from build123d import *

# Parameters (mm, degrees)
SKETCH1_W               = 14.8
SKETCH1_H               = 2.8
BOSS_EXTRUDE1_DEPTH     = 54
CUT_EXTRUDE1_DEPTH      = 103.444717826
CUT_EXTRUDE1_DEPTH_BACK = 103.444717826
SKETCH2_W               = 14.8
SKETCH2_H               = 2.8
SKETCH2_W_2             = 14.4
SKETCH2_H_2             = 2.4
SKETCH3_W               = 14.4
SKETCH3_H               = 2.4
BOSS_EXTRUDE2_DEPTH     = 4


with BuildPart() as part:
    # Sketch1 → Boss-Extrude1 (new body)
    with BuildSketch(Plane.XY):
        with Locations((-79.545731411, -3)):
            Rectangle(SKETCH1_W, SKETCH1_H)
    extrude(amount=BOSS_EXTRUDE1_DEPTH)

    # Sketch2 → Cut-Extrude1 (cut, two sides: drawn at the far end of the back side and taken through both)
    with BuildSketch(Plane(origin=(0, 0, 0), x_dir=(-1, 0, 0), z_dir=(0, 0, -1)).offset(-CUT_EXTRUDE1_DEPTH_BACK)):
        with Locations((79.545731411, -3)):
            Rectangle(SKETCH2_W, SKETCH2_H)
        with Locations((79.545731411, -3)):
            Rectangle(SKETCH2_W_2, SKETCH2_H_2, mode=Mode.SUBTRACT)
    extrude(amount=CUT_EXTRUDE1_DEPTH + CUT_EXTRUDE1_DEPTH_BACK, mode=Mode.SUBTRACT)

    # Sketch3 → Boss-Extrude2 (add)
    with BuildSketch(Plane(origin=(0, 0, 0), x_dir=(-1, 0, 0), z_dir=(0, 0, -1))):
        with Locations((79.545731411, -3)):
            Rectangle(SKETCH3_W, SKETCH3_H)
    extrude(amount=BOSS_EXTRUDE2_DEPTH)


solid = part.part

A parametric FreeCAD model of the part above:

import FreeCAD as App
import Part
import Sketcher
from FreeCAD import Vector

doc = App.newDocument("Part")
body = doc.addObject("PartDesign::Body", "Body")

sketch1 = doc.addObject("Sketcher::SketchObject", "Sketch")
body.addObject(sketch1)
sketch1.AttachmentSupport = (doc.XY_Plane, [""])
sketch1.MapMode = "FlatFace"
sketch1.addGeometry([
    Part.LineSegment(Vector(-86.9, -1.6, 0), Vector(-86.9, -4.4, 0)),
    Part.LineSegment(Vector(-86.9, -4.4, 0), Vector(-72.1, -4.4, 0)),
    Part.LineSegment(Vector(-72.1, -4.4, 0), Vector(-72.1, -1.6, 0)),
    Part.LineSegment(Vector(-72.1, -1.6, 0), Vector(-86.9, -1.6, 0)),
], False)
sketch1.addConstraint([
    Sketcher.Constraint("Coincident", 0, 2, 1, 1),
    Sketcher.Constraint("Coincident", 1, 2, 2, 1),
    Sketcher.Constraint("Coincident", 2, 2, 3, 1),
    Sketcher.Constraint("Coincident", 3, 2, 0, 1),
    Sketcher.Constraint("Vertical", 0),
    Sketcher.Constraint("Horizontal", 1),
    Sketcher.Constraint("Vertical", 2),
    Sketcher.Constraint("Horizontal", 3),
    Sketcher.Constraint("DistanceX", 1, 1, 1, 2, 14.8),
    Sketcher.Constraint("DistanceY", 0, 2, 0, 1, 2.8),
    Sketcher.Constraint("DistanceY", 0, 2, -1, 1, 4.4),
    Sketcher.Constraint("DistanceX", 0, 2, -1, 1, 86.945731),
])
pad1 = doc.addObject("PartDesign::Pad", "Pad")
body.addObject(pad1)
pad1.Profile = sketch1
pad1.Length = 54

sketch2 = doc.addObject("Sketcher::SketchObject", "Sketch001")
body.addObject(sketch2)
sketch2.AttachmentSupport = (doc.XY_Plane, [""])
sketch2.MapMode = "FlatFace"
sketch2.addGeometry([
    Part.LineSegment(Vector(-72.1, -1.6, 0), Vector(-72.1, -4.4, 0)),
    Part.LineSegment(Vector(-72.1, -4.4, 0), Vector(-86.9, -4.4, 0)),
    Part.LineSegment(Vector(-86.9, -4.4, 0), Vector(-86.9, -1.6, 0)),
    Part.LineSegment(Vector(-86.9, -1.6, 0), Vector(-72.1, -1.6, 0)),
    Part.LineSegment(Vector(-86.7, -4.2, 0), Vector(-72.3, -4.2, 0)),
    Part.LineSegment(Vector(-72.3, -4.2, 0), Vector(-72.3, -1.8, 0)),
    Part.LineSegment(Vector(-72.3, -1.8, 0), Vector(-86.7, -1.8, 0)),
    Part.LineSegment(Vector(-86.7, -1.8, 0), Vector(-86.7, -4.2, 0)),
], False)
sketch2.addConstraint([
    Sketcher.Constraint("Coincident", 0, 2, 1, 1),
    Sketcher.Constraint("Coincident", 1, 2, 2, 1),
    Sketcher.Constraint("Coincident", 2, 2, 3, 1),
    Sketcher.Constraint("Coincident", 3, 2, 0, 1),
    Sketcher.Constraint("Coincident", 4, 2, 5, 1),
    Sketcher.Constraint("Coincident", 5, 2, 6, 1),
    Sketcher.Constraint("Coincident", 6, 2, 7, 1),
    Sketcher.Constraint("Coincident", 7, 2, 4, 1),
    Sketcher.Constraint("Vertical", 0),
    Sketcher.Constraint("Horizontal", 1),
    Sketcher.Constraint("Vertical", 2),
    Sketcher.Constraint("Horizontal", 3),
    Sketcher.Constraint("Horizontal", 4),
    Sketcher.Constraint("Vertical", 5),
    Sketcher.Constraint("Horizontal", 6),
    Sketcher.Constraint("Vertical", 7),
    Sketcher.Constraint("DistanceX", 1, 2, 1, 1, 14.8),
    Sketcher.Constraint("DistanceX", 4, 1, 4, 2, 14.4),
    Sketcher.Constraint("DistanceY", 0, 2, 0, 1, 2.8),
    Sketcher.Constraint("DistanceY", 5, 1, 5, 2, 2.4),
    Sketcher.Constraint("DistanceY", 0, 2, -1, 1, 4.4),
    Sketcher.Constraint("DistanceY", 4, 2, -1, 1, 4.2),
    Sketcher.Constraint("DistanceX", 4, 2, 0, 2, 0.2),
    Sketcher.Constraint("DistanceX", 0, 2, -1, 1, 72.145731),
])
pocket1 = doc.addObject("PartDesign::Pocket", "Pocket")
body.addObject(pocket1)
pocket1.Profile = sketch2
pocket1.Type = "ThroughAll"
pocket1.Midplane = True

sketch3 = doc.addObject("Sketcher::SketchObject", "Sketch002")
body.addObject(sketch3)
sketch3.AttachmentSupport = (doc.XY_Plane, [""])
sketch3.MapMode = "FlatFace"
sketch3.addGeometry([
    Part.LineSegment(Vector(-72.3, -1.8, 0), Vector(-72.3, -4.2, 0)),
    Part.LineSegment(Vector(-72.3, -4.2, 0), Vector(-86.7, -4.2, 0)),
    Part.LineSegment(Vector(-86.7, -4.2, 0), Vector(-86.7, -1.8, 0)),
    Part.LineSegment(Vector(-86.7, -1.8, 0), Vector(-72.3, -1.8, 0)),
], False)
sketch3.addConstraint([
    Sketcher.Constraint("Coincident", 0, 2, 1, 1),
    Sketcher.Constraint("Coincident", 1, 2, 2, 1),
    Sketcher.Constraint("Coincident", 2, 2, 3, 1),
    Sketcher.Constraint("Coincident", 3, 2, 0, 1),
    Sketcher.Constraint("Vertical", 0),
    Sketcher.Constraint("Horizontal", 1),
    Sketcher.Constraint("Vertical", 2),
    Sketcher.Constraint("Horizontal", 3),
    Sketcher.Constraint("DistanceX", 1, 2, 1, 1, 14.4),
    Sketcher.Constraint("DistanceY", 0, 2, 0, 1, 2.4),
    Sketcher.Constraint("DistanceY", 0, 2, -1, 1, 4.2),
    Sketcher.Constraint("DistanceX", 0, 2, -1, 1, 72.345731),
])
pad2 = doc.addObject("PartDesign::Pad", "Pad001")
body.addObject(pad2)
pad2.Profile = sketch3
pad2.Length = 4
pad2.Reversed = True

doc.recompute()
